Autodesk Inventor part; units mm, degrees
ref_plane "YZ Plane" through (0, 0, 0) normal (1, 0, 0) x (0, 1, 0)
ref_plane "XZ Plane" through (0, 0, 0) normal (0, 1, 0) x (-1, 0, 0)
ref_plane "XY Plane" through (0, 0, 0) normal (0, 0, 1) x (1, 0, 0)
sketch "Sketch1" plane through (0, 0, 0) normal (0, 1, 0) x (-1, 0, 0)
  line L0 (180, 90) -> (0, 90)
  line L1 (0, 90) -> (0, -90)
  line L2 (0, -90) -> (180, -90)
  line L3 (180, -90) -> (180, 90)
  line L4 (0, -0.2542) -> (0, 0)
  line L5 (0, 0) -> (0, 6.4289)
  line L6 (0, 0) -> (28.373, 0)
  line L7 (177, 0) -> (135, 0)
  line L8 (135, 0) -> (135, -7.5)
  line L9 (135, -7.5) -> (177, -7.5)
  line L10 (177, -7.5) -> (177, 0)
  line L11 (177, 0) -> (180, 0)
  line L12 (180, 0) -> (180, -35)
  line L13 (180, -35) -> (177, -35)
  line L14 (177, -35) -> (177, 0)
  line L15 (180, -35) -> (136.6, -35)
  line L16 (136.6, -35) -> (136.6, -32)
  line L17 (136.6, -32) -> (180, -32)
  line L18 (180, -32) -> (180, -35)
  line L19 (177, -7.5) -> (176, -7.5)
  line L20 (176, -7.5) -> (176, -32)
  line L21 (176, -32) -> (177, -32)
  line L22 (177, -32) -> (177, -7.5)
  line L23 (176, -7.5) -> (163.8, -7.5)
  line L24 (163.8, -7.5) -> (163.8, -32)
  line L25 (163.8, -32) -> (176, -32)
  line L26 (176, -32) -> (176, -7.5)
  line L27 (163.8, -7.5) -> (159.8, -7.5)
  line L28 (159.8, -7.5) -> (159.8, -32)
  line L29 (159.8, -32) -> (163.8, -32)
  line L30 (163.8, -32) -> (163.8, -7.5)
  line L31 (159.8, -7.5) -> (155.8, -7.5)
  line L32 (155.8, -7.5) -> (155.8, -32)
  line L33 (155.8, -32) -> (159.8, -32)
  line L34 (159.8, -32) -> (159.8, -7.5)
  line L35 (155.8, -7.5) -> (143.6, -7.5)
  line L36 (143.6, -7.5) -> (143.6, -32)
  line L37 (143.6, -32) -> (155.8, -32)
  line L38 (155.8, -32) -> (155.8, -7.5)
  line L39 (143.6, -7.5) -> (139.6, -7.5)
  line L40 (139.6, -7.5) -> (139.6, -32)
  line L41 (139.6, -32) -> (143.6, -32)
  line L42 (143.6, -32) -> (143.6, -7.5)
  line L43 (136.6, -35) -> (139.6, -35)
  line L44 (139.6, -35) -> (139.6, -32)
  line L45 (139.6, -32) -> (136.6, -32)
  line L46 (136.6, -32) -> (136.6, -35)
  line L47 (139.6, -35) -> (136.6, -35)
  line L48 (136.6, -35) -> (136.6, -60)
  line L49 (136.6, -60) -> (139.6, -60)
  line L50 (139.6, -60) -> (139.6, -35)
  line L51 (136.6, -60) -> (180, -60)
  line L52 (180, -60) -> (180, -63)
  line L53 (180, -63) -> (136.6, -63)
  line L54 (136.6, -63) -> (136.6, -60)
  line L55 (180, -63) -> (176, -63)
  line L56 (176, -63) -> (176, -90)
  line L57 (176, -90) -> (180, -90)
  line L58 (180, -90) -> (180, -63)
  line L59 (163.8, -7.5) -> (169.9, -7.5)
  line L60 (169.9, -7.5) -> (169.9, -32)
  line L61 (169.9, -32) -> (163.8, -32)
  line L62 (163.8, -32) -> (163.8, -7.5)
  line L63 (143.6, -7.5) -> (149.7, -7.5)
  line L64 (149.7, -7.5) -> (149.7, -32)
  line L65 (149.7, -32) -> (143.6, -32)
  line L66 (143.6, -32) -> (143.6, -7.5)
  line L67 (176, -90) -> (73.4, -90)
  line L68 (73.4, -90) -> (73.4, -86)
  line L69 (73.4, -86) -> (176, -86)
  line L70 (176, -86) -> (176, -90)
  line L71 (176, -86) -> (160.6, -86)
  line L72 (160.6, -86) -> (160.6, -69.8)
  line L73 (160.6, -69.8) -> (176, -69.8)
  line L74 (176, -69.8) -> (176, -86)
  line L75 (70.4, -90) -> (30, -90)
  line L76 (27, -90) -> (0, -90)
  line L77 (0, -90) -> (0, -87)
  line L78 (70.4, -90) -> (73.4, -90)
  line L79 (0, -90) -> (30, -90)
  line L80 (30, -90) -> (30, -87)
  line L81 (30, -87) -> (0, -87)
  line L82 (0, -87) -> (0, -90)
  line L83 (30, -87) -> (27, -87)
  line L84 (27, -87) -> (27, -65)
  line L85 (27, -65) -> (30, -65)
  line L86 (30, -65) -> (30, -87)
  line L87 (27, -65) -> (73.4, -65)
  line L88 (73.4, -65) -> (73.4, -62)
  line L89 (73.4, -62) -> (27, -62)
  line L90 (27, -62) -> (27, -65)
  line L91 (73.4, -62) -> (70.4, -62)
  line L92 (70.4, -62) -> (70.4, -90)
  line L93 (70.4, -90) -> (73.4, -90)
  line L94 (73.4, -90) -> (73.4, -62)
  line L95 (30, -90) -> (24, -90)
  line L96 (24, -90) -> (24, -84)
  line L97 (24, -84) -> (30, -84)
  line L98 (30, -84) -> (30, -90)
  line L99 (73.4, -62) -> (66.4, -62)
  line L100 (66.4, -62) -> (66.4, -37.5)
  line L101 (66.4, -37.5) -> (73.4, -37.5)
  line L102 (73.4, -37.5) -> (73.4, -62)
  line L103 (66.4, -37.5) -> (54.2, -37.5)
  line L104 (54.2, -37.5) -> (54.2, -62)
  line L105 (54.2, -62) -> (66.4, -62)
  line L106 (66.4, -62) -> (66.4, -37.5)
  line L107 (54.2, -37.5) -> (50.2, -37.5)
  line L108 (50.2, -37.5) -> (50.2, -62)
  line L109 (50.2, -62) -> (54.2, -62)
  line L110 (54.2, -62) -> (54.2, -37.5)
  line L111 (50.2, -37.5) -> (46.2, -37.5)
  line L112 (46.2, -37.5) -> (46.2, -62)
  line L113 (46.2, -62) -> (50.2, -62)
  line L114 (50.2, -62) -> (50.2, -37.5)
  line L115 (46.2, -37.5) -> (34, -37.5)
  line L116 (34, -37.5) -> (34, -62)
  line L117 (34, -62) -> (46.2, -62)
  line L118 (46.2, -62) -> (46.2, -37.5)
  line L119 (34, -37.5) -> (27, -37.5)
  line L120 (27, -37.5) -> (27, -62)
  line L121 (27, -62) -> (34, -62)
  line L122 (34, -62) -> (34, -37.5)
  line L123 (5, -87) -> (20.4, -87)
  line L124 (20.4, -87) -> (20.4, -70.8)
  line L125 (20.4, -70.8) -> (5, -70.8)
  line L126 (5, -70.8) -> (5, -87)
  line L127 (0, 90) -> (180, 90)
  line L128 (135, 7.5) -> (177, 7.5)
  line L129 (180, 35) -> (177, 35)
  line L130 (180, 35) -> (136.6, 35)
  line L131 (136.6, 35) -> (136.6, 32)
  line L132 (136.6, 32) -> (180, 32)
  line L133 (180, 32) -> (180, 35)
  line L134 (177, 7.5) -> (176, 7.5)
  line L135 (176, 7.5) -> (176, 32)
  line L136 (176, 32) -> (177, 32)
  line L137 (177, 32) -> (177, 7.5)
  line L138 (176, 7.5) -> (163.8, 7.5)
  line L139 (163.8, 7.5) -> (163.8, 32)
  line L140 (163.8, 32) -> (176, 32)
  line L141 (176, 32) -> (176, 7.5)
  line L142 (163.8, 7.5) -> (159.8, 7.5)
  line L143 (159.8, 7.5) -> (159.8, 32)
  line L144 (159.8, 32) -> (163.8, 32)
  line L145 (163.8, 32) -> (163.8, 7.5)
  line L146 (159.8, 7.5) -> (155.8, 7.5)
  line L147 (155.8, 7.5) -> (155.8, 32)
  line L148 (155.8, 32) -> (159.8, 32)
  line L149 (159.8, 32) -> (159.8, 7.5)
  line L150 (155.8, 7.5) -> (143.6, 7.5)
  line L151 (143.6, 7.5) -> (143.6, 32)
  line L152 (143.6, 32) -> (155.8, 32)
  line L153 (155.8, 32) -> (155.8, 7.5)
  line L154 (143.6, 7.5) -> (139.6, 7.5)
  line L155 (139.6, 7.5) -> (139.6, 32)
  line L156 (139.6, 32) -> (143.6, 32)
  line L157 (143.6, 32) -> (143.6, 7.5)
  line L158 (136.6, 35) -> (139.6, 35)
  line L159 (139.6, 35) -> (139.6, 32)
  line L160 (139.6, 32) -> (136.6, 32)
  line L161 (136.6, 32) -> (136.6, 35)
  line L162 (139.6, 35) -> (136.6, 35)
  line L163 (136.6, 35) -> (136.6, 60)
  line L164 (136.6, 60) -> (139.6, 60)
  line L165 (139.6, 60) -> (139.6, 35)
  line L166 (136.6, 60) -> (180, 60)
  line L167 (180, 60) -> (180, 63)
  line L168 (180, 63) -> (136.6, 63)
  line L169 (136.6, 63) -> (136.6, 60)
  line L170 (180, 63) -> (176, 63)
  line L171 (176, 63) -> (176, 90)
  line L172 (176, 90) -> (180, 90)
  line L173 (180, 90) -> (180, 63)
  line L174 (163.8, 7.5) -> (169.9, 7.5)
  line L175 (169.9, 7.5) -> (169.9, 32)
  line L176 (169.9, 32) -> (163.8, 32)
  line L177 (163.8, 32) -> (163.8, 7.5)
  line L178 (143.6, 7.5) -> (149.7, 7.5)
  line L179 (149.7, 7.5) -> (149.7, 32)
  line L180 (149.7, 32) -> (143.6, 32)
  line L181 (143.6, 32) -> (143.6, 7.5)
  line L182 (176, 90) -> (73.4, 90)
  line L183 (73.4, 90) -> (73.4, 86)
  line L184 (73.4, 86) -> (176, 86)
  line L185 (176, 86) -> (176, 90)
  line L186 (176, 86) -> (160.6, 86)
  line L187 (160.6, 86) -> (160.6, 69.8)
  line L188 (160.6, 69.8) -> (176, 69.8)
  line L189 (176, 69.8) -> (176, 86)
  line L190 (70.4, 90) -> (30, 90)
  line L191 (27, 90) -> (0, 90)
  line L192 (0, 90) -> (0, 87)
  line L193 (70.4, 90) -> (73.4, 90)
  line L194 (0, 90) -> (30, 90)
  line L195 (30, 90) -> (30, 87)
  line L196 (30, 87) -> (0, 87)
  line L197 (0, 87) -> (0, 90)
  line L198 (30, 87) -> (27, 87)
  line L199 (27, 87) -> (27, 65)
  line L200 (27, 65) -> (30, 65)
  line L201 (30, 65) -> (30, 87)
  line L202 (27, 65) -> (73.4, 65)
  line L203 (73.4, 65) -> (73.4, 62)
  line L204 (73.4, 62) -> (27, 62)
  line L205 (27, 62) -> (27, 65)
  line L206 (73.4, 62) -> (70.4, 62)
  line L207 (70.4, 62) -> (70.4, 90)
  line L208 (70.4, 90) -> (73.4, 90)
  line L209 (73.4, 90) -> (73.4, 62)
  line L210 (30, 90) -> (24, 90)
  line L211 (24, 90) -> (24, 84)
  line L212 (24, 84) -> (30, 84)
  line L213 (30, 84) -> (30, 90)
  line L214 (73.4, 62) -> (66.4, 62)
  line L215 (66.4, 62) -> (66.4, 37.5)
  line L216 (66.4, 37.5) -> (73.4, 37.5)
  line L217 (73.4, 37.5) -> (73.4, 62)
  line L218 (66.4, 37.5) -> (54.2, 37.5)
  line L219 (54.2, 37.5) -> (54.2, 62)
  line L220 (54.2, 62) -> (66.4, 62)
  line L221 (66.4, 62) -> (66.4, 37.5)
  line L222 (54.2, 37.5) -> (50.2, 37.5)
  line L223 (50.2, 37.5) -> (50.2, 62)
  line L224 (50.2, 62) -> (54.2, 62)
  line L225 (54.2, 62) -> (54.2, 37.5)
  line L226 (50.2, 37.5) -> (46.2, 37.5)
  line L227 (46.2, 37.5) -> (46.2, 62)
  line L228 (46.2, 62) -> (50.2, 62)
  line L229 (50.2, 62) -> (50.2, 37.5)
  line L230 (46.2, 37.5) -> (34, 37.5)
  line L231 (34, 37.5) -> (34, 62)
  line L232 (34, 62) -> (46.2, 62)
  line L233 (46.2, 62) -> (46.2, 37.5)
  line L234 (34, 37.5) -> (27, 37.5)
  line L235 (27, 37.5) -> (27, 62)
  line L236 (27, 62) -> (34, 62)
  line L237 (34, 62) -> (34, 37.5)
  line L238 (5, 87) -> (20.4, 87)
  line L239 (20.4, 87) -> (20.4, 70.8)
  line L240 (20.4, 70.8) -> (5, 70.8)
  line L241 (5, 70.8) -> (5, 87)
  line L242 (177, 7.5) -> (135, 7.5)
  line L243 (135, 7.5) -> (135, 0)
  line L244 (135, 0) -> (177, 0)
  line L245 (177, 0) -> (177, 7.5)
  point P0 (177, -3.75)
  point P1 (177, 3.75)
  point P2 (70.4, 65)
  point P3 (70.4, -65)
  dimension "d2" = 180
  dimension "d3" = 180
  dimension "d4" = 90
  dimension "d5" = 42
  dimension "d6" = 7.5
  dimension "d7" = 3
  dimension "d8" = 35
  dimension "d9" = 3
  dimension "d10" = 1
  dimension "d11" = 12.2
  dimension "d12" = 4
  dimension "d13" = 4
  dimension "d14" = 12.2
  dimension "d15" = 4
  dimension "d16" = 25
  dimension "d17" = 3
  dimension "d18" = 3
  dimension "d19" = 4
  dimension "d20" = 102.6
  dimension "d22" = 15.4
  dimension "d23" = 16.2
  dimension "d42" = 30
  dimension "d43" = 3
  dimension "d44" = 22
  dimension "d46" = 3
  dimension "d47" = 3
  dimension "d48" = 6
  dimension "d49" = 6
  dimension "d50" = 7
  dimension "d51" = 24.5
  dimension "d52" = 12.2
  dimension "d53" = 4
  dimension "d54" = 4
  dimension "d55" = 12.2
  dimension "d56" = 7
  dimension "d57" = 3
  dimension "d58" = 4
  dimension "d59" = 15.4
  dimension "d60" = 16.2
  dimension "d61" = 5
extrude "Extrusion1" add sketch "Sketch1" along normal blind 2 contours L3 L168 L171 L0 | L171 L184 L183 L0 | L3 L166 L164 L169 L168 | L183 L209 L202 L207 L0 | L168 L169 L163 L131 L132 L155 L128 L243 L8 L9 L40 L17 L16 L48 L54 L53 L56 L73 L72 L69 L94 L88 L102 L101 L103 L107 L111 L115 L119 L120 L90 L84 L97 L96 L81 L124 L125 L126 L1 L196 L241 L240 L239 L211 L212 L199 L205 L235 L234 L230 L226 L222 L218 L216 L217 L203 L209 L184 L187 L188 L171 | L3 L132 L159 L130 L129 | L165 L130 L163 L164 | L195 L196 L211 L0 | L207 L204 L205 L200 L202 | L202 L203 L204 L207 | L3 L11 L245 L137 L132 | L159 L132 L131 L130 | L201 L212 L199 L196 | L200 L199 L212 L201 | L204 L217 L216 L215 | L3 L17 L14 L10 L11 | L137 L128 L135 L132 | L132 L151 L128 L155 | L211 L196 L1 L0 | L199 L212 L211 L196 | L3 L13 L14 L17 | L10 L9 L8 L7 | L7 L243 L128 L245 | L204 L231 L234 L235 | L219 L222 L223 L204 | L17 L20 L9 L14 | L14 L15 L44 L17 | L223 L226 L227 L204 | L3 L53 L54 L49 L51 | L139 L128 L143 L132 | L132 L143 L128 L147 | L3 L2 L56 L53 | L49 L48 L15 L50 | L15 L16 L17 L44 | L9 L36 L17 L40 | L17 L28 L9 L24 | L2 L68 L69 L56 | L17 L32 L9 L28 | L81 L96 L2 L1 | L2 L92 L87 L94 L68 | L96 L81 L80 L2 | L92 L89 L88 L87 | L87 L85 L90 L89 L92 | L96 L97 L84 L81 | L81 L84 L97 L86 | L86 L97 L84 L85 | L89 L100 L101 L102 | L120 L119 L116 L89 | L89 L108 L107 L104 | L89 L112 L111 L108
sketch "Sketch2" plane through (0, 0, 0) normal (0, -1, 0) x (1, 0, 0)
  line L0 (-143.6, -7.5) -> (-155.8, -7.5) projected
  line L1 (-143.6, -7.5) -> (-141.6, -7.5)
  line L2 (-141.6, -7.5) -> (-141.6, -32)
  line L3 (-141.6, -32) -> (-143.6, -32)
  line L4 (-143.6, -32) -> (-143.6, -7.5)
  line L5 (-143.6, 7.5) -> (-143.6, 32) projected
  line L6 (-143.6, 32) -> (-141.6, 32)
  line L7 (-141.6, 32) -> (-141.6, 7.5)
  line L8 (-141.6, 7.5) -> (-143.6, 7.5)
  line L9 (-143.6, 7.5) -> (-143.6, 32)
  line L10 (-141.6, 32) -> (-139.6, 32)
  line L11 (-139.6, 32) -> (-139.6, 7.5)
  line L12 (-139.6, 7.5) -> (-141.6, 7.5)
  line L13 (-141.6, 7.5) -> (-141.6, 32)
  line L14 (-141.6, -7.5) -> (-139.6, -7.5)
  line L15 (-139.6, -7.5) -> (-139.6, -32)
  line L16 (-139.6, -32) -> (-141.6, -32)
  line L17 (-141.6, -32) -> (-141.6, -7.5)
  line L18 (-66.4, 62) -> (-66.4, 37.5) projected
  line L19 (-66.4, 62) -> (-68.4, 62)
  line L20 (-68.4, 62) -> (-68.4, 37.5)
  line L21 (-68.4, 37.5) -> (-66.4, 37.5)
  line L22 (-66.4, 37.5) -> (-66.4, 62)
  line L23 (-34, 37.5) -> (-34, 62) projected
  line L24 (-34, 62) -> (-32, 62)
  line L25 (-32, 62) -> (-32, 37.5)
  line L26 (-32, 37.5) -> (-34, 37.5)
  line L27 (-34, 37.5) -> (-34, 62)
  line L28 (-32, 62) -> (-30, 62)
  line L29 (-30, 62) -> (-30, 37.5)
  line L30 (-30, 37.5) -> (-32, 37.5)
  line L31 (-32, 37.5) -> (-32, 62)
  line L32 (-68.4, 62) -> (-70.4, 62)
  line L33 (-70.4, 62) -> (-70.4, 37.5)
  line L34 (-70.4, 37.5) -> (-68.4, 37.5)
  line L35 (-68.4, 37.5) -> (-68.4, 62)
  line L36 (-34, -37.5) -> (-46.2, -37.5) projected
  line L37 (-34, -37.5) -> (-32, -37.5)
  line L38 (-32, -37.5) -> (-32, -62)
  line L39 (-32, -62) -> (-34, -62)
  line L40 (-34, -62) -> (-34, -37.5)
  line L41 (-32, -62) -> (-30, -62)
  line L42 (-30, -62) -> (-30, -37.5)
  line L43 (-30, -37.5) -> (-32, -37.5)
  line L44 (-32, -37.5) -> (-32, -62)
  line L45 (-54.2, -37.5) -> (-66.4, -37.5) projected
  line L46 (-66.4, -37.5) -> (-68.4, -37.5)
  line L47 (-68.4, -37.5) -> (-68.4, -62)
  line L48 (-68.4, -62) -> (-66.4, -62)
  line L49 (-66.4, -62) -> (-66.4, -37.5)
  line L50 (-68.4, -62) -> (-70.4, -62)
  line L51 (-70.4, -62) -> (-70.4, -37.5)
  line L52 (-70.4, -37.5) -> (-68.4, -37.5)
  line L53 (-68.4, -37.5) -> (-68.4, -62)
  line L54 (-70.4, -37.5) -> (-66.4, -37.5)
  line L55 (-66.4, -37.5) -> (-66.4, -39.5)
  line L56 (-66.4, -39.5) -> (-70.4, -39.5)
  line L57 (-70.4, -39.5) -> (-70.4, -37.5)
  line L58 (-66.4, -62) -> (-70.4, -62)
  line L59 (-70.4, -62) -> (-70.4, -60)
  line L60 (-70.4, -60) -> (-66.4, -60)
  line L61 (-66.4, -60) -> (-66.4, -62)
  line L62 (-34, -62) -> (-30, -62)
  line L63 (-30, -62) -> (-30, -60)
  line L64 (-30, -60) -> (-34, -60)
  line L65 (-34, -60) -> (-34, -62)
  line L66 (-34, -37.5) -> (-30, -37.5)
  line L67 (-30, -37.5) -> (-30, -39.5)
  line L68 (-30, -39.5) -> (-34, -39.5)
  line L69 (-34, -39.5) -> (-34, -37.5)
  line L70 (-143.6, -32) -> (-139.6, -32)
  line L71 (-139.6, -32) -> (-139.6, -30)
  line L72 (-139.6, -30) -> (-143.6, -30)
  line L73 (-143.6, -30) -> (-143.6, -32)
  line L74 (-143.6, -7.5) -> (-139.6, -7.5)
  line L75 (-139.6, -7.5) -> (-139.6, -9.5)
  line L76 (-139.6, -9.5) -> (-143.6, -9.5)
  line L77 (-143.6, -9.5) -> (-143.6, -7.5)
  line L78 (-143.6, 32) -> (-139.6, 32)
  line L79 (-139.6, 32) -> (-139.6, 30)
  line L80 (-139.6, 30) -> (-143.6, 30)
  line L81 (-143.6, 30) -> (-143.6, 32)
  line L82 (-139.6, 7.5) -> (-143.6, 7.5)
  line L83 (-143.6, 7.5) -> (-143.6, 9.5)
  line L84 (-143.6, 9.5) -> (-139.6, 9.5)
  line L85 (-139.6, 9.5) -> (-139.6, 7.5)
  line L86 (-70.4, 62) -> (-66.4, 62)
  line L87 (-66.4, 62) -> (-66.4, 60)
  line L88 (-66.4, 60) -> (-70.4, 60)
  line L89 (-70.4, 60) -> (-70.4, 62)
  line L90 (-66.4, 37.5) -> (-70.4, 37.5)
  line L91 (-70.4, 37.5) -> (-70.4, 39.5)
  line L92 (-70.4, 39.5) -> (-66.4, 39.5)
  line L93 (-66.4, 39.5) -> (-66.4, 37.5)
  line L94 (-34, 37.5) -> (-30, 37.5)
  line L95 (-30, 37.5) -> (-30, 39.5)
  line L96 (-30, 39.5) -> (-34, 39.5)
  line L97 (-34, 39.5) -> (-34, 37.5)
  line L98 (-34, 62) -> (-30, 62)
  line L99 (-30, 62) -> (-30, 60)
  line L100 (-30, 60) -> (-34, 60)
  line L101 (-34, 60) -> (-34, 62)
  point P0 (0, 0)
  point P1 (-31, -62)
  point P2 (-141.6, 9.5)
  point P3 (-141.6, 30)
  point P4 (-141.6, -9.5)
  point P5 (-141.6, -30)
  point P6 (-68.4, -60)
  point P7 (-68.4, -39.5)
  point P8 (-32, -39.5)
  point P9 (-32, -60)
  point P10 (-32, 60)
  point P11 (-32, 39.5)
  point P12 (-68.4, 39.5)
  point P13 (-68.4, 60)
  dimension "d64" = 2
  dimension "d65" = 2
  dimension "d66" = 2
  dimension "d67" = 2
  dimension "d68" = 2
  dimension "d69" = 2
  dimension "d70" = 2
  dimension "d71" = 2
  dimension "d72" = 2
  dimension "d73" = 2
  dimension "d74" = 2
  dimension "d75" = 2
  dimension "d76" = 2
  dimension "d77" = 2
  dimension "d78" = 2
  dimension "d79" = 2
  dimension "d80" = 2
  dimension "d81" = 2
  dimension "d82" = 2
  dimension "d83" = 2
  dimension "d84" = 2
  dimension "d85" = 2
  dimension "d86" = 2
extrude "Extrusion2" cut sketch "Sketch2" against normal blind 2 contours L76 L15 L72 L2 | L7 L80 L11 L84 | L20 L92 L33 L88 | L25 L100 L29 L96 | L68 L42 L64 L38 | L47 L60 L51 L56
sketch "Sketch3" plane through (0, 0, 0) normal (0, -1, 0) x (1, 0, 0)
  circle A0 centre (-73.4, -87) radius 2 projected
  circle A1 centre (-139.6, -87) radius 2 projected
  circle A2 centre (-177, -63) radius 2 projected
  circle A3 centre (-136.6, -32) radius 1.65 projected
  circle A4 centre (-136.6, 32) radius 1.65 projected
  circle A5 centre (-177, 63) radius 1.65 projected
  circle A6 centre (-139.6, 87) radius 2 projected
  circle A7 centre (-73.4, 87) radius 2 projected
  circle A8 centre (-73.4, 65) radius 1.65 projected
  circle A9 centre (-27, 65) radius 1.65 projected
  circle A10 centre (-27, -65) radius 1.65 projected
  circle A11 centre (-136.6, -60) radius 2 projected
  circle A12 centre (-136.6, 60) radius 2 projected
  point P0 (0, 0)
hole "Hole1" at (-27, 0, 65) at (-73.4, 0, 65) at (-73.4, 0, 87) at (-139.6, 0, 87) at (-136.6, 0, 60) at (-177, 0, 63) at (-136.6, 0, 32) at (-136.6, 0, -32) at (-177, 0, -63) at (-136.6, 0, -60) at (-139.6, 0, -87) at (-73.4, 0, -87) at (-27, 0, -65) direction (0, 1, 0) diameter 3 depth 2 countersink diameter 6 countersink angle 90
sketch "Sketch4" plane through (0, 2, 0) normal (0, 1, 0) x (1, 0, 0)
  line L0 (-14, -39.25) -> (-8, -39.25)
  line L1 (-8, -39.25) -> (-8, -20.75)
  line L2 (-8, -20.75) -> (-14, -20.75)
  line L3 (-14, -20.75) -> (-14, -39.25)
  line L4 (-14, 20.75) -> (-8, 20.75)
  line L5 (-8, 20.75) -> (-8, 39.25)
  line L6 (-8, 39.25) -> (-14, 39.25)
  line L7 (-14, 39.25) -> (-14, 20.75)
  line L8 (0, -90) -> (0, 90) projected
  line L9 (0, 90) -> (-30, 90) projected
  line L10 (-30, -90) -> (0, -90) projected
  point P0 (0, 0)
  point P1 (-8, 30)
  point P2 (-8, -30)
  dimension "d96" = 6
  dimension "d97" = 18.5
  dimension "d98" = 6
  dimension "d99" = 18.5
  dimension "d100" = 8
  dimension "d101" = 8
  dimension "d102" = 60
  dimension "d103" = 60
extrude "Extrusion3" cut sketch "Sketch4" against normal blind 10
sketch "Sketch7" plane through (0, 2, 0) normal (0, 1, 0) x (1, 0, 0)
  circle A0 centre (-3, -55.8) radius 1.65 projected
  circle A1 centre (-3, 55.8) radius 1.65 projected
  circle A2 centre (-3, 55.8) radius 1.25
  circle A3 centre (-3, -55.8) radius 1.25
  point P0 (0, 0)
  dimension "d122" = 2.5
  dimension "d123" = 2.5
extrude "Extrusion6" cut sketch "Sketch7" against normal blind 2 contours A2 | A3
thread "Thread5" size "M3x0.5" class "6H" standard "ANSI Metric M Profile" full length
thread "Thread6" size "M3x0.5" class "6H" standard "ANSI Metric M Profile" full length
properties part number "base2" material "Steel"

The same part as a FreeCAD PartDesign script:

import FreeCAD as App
import Part
import Sketcher

doc = App.newDocument("Part")
body = doc.addObject("PartDesign::Body", "Body")

sketch1 = body.newObject("Sketcher::SketchObject", "Sketch")
sketch1.AttachmentSupport = (doc.getObject("XZ_Plane"), [""])
sketch1.MapMode = "FlatFace"
sketch1.addGeometry(Part.LineSegment(App.Vector(-180, 90, 0), App.Vector(-70.4, 90, 0)), False)
sketch1.addGeometry(Part.LineSegment(App.Vector(-70.4, 90, 0), App.Vector(-70.4, 65, 0)), False)
sketch1.addGeometry(Part.LineSegment(App.Vector(-70.4, 65, 0), App.Vector(-30, 65, 0)), False)
sketch1.addGeometry(Part.LineSegment(App.Vector(-30, 65, 0), App.Vector(-30, 90, 0)), False)
sketch1.addGeometry(Part.LineSegment(App.Vector(-30, 90, 0), App.Vector(0, 90, 0)), False)
sketch1.addGeometry(Part.LineSegment(App.Vector(0, 90, 0), App.Vector(0, -90, 0)), False)
sketch1.addGeometry(Part.LineSegment(App.Vector(0, -90, 0), App.Vector(-30, -90, 0)), False)
sketch1.addGeometry(Part.LineSegment(App.Vector(-30, -90, 0), App.Vector(-30, -65, 0)), False)
sketch1.addGeometry(Part.LineSegment(App.Vector(-30, -65, 0), App.Vector(-70.4, -65, 0)), False)
sketch1.addGeometry(Part.LineSegment(App.Vector(-70.4, -65, 0), App.Vector(-70.4, -90, 0)), False)
sketch1.addGeometry(Part.LineSegment(App.Vector(-70.4, -90, 0), App.Vector(-180, -90, 0)), False)
sketch1.addGeometry(Part.LineSegment(App.Vector(-180, -90, 0), App.Vector(-180, -60, 0)), False)
sketch1.addGeometry(Part.LineSegment(App.Vector(-180, -60, 0), App.Vector(-139.6, -60, 0)), False)
sketch1.addGeometry(Part.LineSegment(App.Vector(-139.6, -60, 0), App.Vector(-139.6, -35, 0)), False)
sketch1.addGeometry(Part.LineSegment(App.Vector(-139.6, -35, 0), App.Vector(-180, -35, 0)), False)
sketch1.addGeometry(Part.LineSegment(App.Vector(-180, -35, 0), App.Vector(-180, 35, 0)), False)
sketch1.addGeometry(Part.LineSegment(App.Vector(-180, 35, 0), App.Vector(-139.6, 35, 0)), False)
sketch1.addGeometry(Part.LineSegment(App.Vector(-139.6, 35, 0), App.Vector(-139.6, 60, 0)), False)
sketch1.addGeometry(Part.LineSegment(App.Vector(-139.6, 60, 0), App.Vector(-180, 60, 0)), False)
sketch1.addGeometry(Part.LineSegment(App.Vector(-180, 60, 0), App.Vector(-180, 90, 0)), False)
sketch1.addGeometry(Part.LineSegment(App.Vector(-176, 86, 0), App.Vector(-176, 69.8, 0)), False)
sketch1.addGeometry(Part.LineSegment(App.Vector(-176, 69.8, 0), App.Vector(-160.6, 69.8, 0)), False)
sketch1.addGeometry(Part.LineSegment(App.Vector(-160.6, 69.8, 0), App.Vector(-160.6, 86, 0)), False)
sketch1.addGeometry(Part.LineSegment(App.Vector(-160.6, 86, 0), App.Vector(-176, 86, 0)), False)
sketch1.addGeometry(Part.LineSegment(App.Vector(-160.6, -69.8, 0), App.Vector(-176, -69.8, 0)), False)
sketch1.addGeometry(Part.LineSegment(App.Vector(-176, -69.8, 0), App.Vector(-176, -86, 0)), False)
sketch1.addGeometry(Part.LineSegment(App.Vector(-176, -86, 0), App.Vector(-160.6, -86, 0)), False)
sketch1.addGeometry(Part.LineSegment(App.Vector(-160.6, -86, 0), App.Vector(-160.6, -69.8, 0)), False)
sketch1.addGeometry(Part.LineSegment(App.Vector(-54.2, -37.5, 0), App.Vector(-66.4, -37.5, 0)), False)
sketch1.addGeometry(Part.LineSegment(App.Vector(-66.4, -37.5, 0), App.Vector(-66.4, -62, 0)), False)
sketch1.addGeometry(Part.LineSegment(App.Vector(-66.4, -62, 0), App.Vector(-54.2, -62, 0)), False)
sketch1.addGeometry(Part.LineSegment(App.Vector(-54.2, -62, 0), App.Vector(-54.2, -37.5, 0)), False)
sketch1.addGeometry(Part.LineSegment(App.Vector(-34, -37.5, 0), App.Vector(-46.2, -37.5, 0)), False)
sketch1.addGeometry(Part.LineSegment(App.Vector(-46.2, -37.5, 0), App.Vector(-46.2, -62, 0)), False)
sketch1.addGeometry(Part.LineSegment(App.Vector(-46.2, -62, 0), App.Vector(-34, -62, 0)), False)
sketch1.addGeometry(Part.LineSegment(App.Vector(-34, -62, 0), App.Vector(-34, -37.5, 0)), False)
sketch1.addGeometry(Part.LineSegment(App.Vector(-20.4, -70.8, 0), App.Vector(-20.4, -87, 0)), False)
sketch1.addGeometry(Part.LineSegment(App.Vector(-20.4, -87, 0), App.Vector(-5, -87, 0)), False)
sketch1.addGeometry(Part.LineSegment(App.Vector(-5, -87, 0), App.Vector(-5, -70.8, 0)), False)
sketch1.addGeometry(Part.LineSegment(App.Vector(-5, -70.8, 0), App.Vector(-20.4, -70.8, 0)), False)
sketch1.addGeometry(Part.LineSegment(App.Vector(-5, 70.8, 0), App.Vector(-5, 87, 0)), False)
sketch1.addGeometry(Part.LineSegment(App.Vector(-5, 87, 0), App.Vector(-20.4, 87, 0)), False)
sketch1.addGeometry(Part.LineSegment(App.Vector(-20.4, 87, 0), App.Vector(-20.4, 70.8, 0)), False)
sketch1.addGeometry(Part.LineSegment(App.Vector(-20.4, 70.8, 0), App.Vector(-5, 70.8, 0)), False)
sketch1.addGeometry(Part.LineSegment(App.Vector(-46.2, 37.5, 0), App.Vector(-34, 37.5, 0)), False)
sketch1.addGeometry(Part.LineSegment(App.Vector(-34, 37.5, 0), App.Vector(-34, 62, 0)), False)
sketch1.addGeometry(Part.LineSegment(App.Vector(-34, 62, 0), App.Vector(-46.2, 62, 0)), False)
sketch1.addGeometry(Part.LineSegment(App.Vector(-46.2, 62, 0), App.Vector(-46.2, 37.5, 0)), False)
sketch1.addGeometry(Part.LineSegment(App.Vector(-66.4, 37.5, 0), App.Vector(-54.2, 37.5, 0)), False)
sketch1.addGeometry(Part.LineSegment(App.Vector(-54.2, 37.5, 0), App.Vector(-54.2, 62, 0)), False)
sketch1.addGeometry(Part.LineSegment(App.Vector(-54.2, 62, 0), App.Vector(-66.4, 62, 0)), False)
sketch1.addGeometry(Part.LineSegment(App.Vector(-66.4, 62, 0), App.Vector(-66.4, 37.5, 0)), False)
sketch1.addGeometry(Part.LineSegment(App.Vector(-143.6, 7.5, 0), App.Vector(-143.6, 32, 0)), False)
sketch1.addGeometry(Part.LineSegment(App.Vector(-143.6, 32, 0), App.Vector(-155.8, 32, 0)), False)
sketch1.addGeometry(Part.LineSegment(App.Vector(-155.8, 32, 0), App.Vector(-155.8, 7.5, 0)), False)
sketch1.addGeometry(Part.LineSegment(App.Vector(-155.8, 7.5, 0), App.Vector(-143.6, 7.5, 0)), False)
sketch1.addGeometry(Part.LineSegment(App.Vector(-176, 7.5, 0), App.Vector(-163.8, 7.5, 0)), False)
sketch1.addGeometry(Part.LineSegment(App.Vector(-163.8, 7.5, 0), App.Vector(-163.8, 32, 0)), False)
sketch1.addGeometry(Part.LineSegment(App.Vector(-163.8, 32, 0), App.Vector(-176, 32, 0)), False)
sketch1.addGeometry(Part.LineSegment(App.Vector(-176, 32, 0), App.Vector(-176, 7.5, 0)), False)
sketch1.addGeometry(Part.LineSegment(App.Vector(-176, -7.5, 0), App.Vector(-176, -32, 0)), False)
sketch1.addGeometry(Part.LineSegment(App.Vector(-176, -32, 0), App.Vector(-163.8, -32, 0)), False)
sketch1.addGeometry(Part.LineSegment(App.Vector(-163.8, -32, 0), App.Vector(-163.8, -7.5, 0)), False)
sketch1.addGeometry(Part.LineSegment(App.Vector(-163.8, -7.5, 0), App.Vector(-176, -7.5, 0)), False)
sketch1.addGeometry(Part.LineSegment(App.Vector(-155.8, -7.5, 0), App.Vector(-155.8, -32, 0)), False)
sketch1.addGeometry(Part.LineSegment(App.Vector(-155.8, -32, 0), App.Vector(-143.6, -32, 0)), False)
sketch1.addGeometry(Part.LineSegment(App.Vector(-143.6, -32, 0), App.Vector(-143.6, -7.5, 0)), False)
sketch1.addGeometry(Part.LineSegment(App.Vector(-143.6, -7.5, 0), App.Vector(-155.8, -7.5, 0)), False)
sketch1.addConstraint(Sketcher.Constraint("Coincident", 0, 2, 1, 1))
sketch1.addConstraint(Sketcher.Constraint("Coincident", 1, 2, 2, 1))
sketch1.addConstraint(Sketcher.Constraint("Coincident", 2, 2, 3, 1))
sketch1.addConstraint(Sketcher.Constraint("Coincident", 3, 2, 4, 1))
sketch1.addConstraint(Sketcher.Constraint("Coincident", 4, 2, 5, 1))
sketch1.addConstraint(Sketcher.Constraint("Coincident", 5, 2, 6, 1))
sketch1.addConstraint(Sketcher.Constraint("Coincident", 6, 2, 7, 1))
sketch1.addConstraint(Sketcher.Constraint("Coincident", 7, 2, 8, 1))
sketch1.addConstraint(Sketcher.Constraint("Coincident", 8, 2, 9, 1))
sketch1.addConstraint(Sketcher.Constraint("Coincident", 9, 2, 10, 1))
sketch1.addConstraint(Sketcher.Constraint("Coincident", 10, 2, 11, 1))
sketch1.addConstraint(Sketcher.Constraint("Coincident", 11, 2, 12, 1))
sketch1.addConstraint(Sketcher.Constraint("Coincident", 12, 2, 13, 1))
sketch1.addConstraint(Sketcher.Constraint("Coincident", 13, 2, 14, 1))
sketch1.addConstraint(Sketcher.Constraint("Coincident", 14, 2, 15, 1))
sketch1.addConstraint(Sketcher.Constraint("Coincident", 15, 2, 16, 1))
sketch1.addConstraint(Sketcher.Constraint("Coincident", 16, 2, 17, 1))
sketch1.addConstraint(Sketcher.Constraint("Coincident", 17, 2, 18, 1))
sketch1.addConstraint(Sketcher.Constraint("Coincident", 18, 2, 19, 1))
sketch1.addConstraint(Sketcher.Constraint("Coincident", 19, 2, 0, 1))
sketch1.addConstraint(Sketcher.Constraint("Coincident", 20, 2, 21, 1))
sketch1.addConstraint(Sketcher.Constraint("Coincident", 21, 2, 22, 1))
sketch1.addConstraint(Sketcher.Constraint("Coincident", 22, 2, 23, 1))
sketch1.addConstraint(Sketcher.Constraint("Coincident", 23, 2, 20, 1))
sketch1.addConstraint(Sketcher.Constraint("Coincident", 24, 2, 25, 1))
sketch1.addConstraint(Sketcher.Constraint("Coincident", 25, 2, 26, 1))
sketch1.addConstraint(Sketcher.Constraint("Coincident", 26, 2, 27, 1))
sketch1.addConstraint(Sketcher.Constraint("Coincident", 27, 2, 24, 1))
sketch1.addConstraint(Sketcher.Constraint("Coincident", 28, 2, 29, 1))
sketch1.addConstraint(Sketcher.Constraint("Coincident", 29, 2, 30, 1))
sketch1.addConstraint(Sketcher.Constraint("Coincident", 30, 2, 31, 1))
sketch1.addConstraint(Sketcher.Constraint("Coincident", 31, 2, 28, 1))
sketch1.addConstraint(Sketcher.Constraint("Coincident", 32, 2, 33, 1))
sketch1.addConstraint(Sketcher.Constraint("Coincident", 33, 2, 34, 1))
sketch1.addConstraint(Sketcher.Constraint("Coincident", 34, 2, 35, 1))
sketch1.addConstraint(Sketcher.Constraint("Coincident", 35, 2, 32, 1))
sketch1.addConstraint(Sketcher.Constraint("Coincident", 36, 2, 37, 1))
sketch1.addConstraint(Sketcher.Constraint("Coincident", 37, 2, 38, 1))
sketch1.addConstraint(Sketcher.Constraint("Coincident", 38, 2, 39, 1))
sketch1.addConstraint(Sketcher.Constraint("Coincident", 39, 2, 36, 1))
sketch1.addConstraint(Sketcher.Constraint("Coincident", 40, 2, 41, 1))
sketch1.addConstraint(Sketcher.Constraint("Coincident", 41, 2, 42, 1))
sketch1.addConstraint(Sketcher.Constraint("Coincident", 42, 2, 43, 1))
sketch1.addConstraint(Sketcher.Constraint("Coincident", 43, 2, 40, 1))
sketch1.addConstraint(Sketcher.Constraint("Coincident", 44, 2, 45, 1))
sketch1.addConstraint(Sketcher.Constraint("Coincident", 45, 2, 46, 1))
sketch1.addConstraint(Sketcher.Constraint("Coincident", 46, 2, 47, 1))
sketch1.addConstraint(Sketcher.Constraint("Coincident", 47, 2, 44, 1))
sketch1.addConstraint(Sketcher.Constraint("Coincident", 48, 2, 49, 1))
sketch1.addConstraint(Sketcher.Constraint("Coincident", 49, 2, 50, 1))
sketch1.addConstraint(Sketcher.Constraint("Coincident", 50, 2, 51, 1))
sketch1.addConstraint(Sketcher.Constraint("Coincident", 51, 2, 48, 1))
sketch1.addConstraint(Sketcher.Constraint("Coincident", 52, 2, 53, 1))
sketch1.addConstraint(Sketcher.Constraint("Coincident", 53, 2, 54, 1))
sketch1.addConstraint(Sketcher.Constraint("Coincident", 54, 2, 55, 1))
sketch1.addConstraint(Sketcher.Constraint("Coincident", 55, 2, 52, 1))
sketch1.addConstraint(Sketcher.Constraint("Coincident", 56, 2, 57, 1))
sketch1.addConstraint(Sketcher.Constraint("Coincident", 57, 2, 58, 1))
sketch1.addConstraint(Sketcher.Constraint("Coincident", 58, 2, 59, 1))
sketch1.addConstraint(Sketcher.Constraint("Coincident", 59, 2, 56, 1))
sketch1.addConstraint(Sketcher.Constraint("Coincident", 60, 2, 61, 1))
sketch1.addConstraint(Sketcher.Constraint("Coincident", 61, 2, 62, 1))
sketch1.addConstraint(Sketcher.Constraint("Coincident", 62, 2, 63, 1))
sketch1.addConstraint(Sketcher.Constraint("Coincident", 63, 2, 60, 1))
sketch1.addConstraint(Sketcher.Constraint("Coincident", 64, 2, 65, 1))
sketch1.addConstraint(Sketcher.Constraint("Coincident", 65, 2, 66, 1))
sketch1.addConstraint(Sketcher.Constraint("Coincident", 66, 2, 67, 1))
sketch1.addConstraint(Sketcher.Constraint("Coincident", 67, 2, 64, 1))
sketch1.addConstraint(Sketcher.Constraint("Horizontal", 0))
sketch1.addConstraint(Sketcher.Constraint("Vertical", 1))
sketch1.addConstraint(Sketcher.Constraint("Horizontal", 2))
sketch1.addConstraint(Sketcher.Constraint("Vertical", 3))
sketch1.addConstraint(Sketcher.Constraint("Horizontal", 4))
sketch1.addConstraint(Sketcher.Constraint("Vertical", 5))
sketch1.addConstraint(Sketcher.Constraint("Horizontal", 6))
sketch1.addConstraint(Sketcher.Constraint("Vertical", 7))
sketch1.addConstraint(Sketcher.Constraint("Horizontal", 8))
sketch1.addConstraint(Sketcher.Constraint("Vertical", 9))
sketch1.addConstraint(Sketcher.Constraint("Horizontal", 10))
sketch1.addConstraint(Sketcher.Constraint("Vertical", 11))
sketch1.addConstraint(Sketcher.Constraint("Horizontal", 12))
sketch1.addConstraint(Sketcher.Constraint("Vertical", 13))
sketch1.addConstraint(Sketcher.Constraint("Horizontal", 14))
sketch1.addConstraint(Sketcher.Constraint("Vertical", 15))
sketch1.addConstraint(Sketcher.Constraint("Horizontal", 16))
sketch1.addConstraint(Sketcher.Constraint("Vertical", 17))
sketch1.addConstraint(Sketcher.Constraint("Horizontal", 18))
sketch1.addConstraint(Sketcher.Constraint("Vertical", 19))
sketch1.addConstraint(Sketcher.Constraint("Vertical", 20))
sketch1.addConstraint(Sketcher.Constraint("Horizontal", 21))
sketch1.addConstraint(Sketcher.Constraint("Vertical", 22))
sketch1.addConstraint(Sketcher.Constraint("Horizontal", 23))
sketch1.addConstraint(Sketcher.Constraint("Horizontal", 24))
sketch1.addConstraint(Sketcher.Constraint("Vertical", 25))
sketch1.addConstraint(Sketcher.Constraint("Horizontal", 26))
sketch1.addConstraint(Sketcher.Constraint("Vertical", 27))
sketch1.addConstraint(Sketcher.Constraint("Horizontal", 28))
sketch1.addConstraint(Sketcher.Constraint("Vertical", 29))
sketch1.addConstraint(Sketcher.Constraint("Horizontal", 30))
sketch1.addConstraint(Sketcher.Constraint("Vertical", 31))
sketch1.addConstraint(Sketcher.Constraint("Horizontal", 32))
sketch1.addConstraint(Sketcher.Constraint("Vertical", 33))
sketch1.addConstraint(Sketcher.Constraint("Horizontal", 34))
sketch1.addConstraint(Sketcher.Constraint("Vertical", 35))
sketch1.addConstraint(Sketcher.Constraint("Vertical", 36))
sketch1.addConstraint(Sketcher.Constraint("Horizontal", 37))
sketch1.addConstraint(Sketcher.Constraint("Vertical", 38))
sketch1.addConstraint(Sketcher.Constraint("Horizontal", 39))
sketch1.addConstraint(Sketcher.Constraint("Vertical", 40))
sketch1.addConstraint(Sketcher.Constraint("Horizontal", 41))
sketch1.addConstraint(Sketcher.Constraint("Vertical", 42))
sketch1.addConstraint(Sketcher.Constraint("Horizontal", 43))
sketch1.addConstraint(Sketcher.Constraint("Horizontal", 44))
sketch1.addConstraint(Sketcher.Constraint("Vertical", 45))
sketch1.addConstraint(Sketcher.Constraint("Horizontal", 46))
sketch1.addConstraint(Sketcher.Constraint("Vertical", 47))
sketch1.addConstraint(Sketcher.Constraint("Horizontal", 48))
sketch1.addConstraint(Sketcher.Constraint("Vertical", 49))
sketch1.addConstraint(Sketcher.Constraint("Horizontal", 50))
sketch1.addConstraint(Sketcher.Constraint("Vertical", 51))
sketch1.addConstraint(Sketcher.Constraint("Vertical", 52))
sketch1.addConstraint(Sketcher.Constraint("Horizontal", 53))
sketch1.addConstraint(Sketcher.Constraint("Vertical", 54))
sketch1.addConstraint(Sketcher.Constraint("Horizontal", 55))
sketch1.addConstraint(Sketcher.Constraint("Horizontal", 56))
sketch1.addConstraint(Sketcher.Constraint("Vertical", 57))
sketch1.addConstraint(Sketcher.Constraint("Horizontal", 58))
sketch1.addConstraint(Sketcher.Constraint("Vertical", 59))
sketch1.addConstraint(Sketcher.Constraint("Vertical", 60))
sketch1.addConstraint(Sketcher.Constraint("Horizontal", 61))
sketch1.addConstraint(Sketcher.Constraint("Vertical", 62))
sketch1.addConstraint(Sketcher.Constraint("Horizontal", 63))
sketch1.addConstraint(Sketcher.Constraint("Vertical", 64))
sketch1.addConstraint(Sketcher.Constraint("Horizontal", 65))
sketch1.addConstraint(Sketcher.Constraint("Vertical", 66))
sketch1.addConstraint(Sketcher.Constraint("Horizontal", 67))
sketch1.addConstraint(Sketcher.Constraint("Symmetric", 4, 2, 5, 2, -1, 1))
sketch1.addConstraint(Sketcher.Constraint("Symmetric", 2, 2, 7, 2, -1))
sketch1.addConstraint(Sketcher.Constraint("Symmetric", 0, 2, 9, 2, -1))
sketch1.addConstraint(Sketcher.Constraint("Symmetric", 13, 2, 16, 2, -1))
sketch1.addConstraint(Sketcher.Constraint("Symmetric", 11, 2, 18, 2, -1))
sketch1.addConstraint(Sketcher.Constraint("Symmetric", 20, 2, 24, 2, -1))
sketch1.addConstraint(Sketcher.Constraint("Symmetric", 22, 2, 26, 2, -1))
sketch1.addConstraint(Sketcher.Constraint("Symmetric", 37, 2, 40, 2, -1))
sketch1.addConstraint(Sketcher.Constraint("Symmetric", 39, 2, 42, 2, -1))
sketch1.addConstraint(Sketcher.Constraint("Symmetric", 35, 2, 44, 2, -1))
sketch1.addConstraint(Sketcher.Constraint("Symmetric", 33, 2, 46, 2, -1))
sketch1.addConstraint(Sketcher.Constraint("Symmetric", 31, 2, 48, 2, -1))
sketch1.addConstraint(Sketcher.Constraint("Symmetric", 29, 2, 50, 2, -1))
sketch1.addConstraint(Sketcher.Constraint("Symmetric", 58, 2, 60, 2, -1))
sketch1.addConstraint(Sketcher.Constraint("Symmetric", 56, 2, 62, 2, -1))
sketch1.addConstraint(Sketcher.Constraint("Symmetric", 53, 2, 64, 2, -1))
sketch1.addConstraint(Sketcher.Constraint("Symmetric", 55, 2, 66, 2, -1))
sketch1.addConstraint(Sketcher.Constraint("Horizontal", 0, 2, 3, 2))
sketch1.addConstraint(Sketcher.Constraint("Horizontal", 31, 2, 32, 2))
sketch1.addConstraint(Sketcher.Constraint("Horizontal", 30, 2, 33, 2))
sketch1.addConstraint(Sketcher.Constraint("Horizontal", 55, 2, 56, 2))
sketch1.addConstraint(Sketcher.Constraint("Horizontal", 53, 2, 57, 2))
sketch1.addConstraint(Sketcher.Constraint("Vertical", 11, 2, 14, 2))
sketch1.addConstraint(Sketcher.Constraint("Vertical", 25, 2, 58, 2))
sketch1.addConstraint(Sketcher.Constraint("Equal", 8, 12))
sketch1.addConstraint(Sketcher.Constraint("Equal", 30, 32))
sketch1.addConstraint(Sketcher.Constraint("Equal", 26, 37))
sketch1.addConstraint(Sketcher.Constraint("Equal", 50, 53))
sketch1.addConstraint(Sketcher.Constraint("Equal", 55, 56))
sketch1.addConstraint(Sketcher.Constraint("Equal", 6, 11))
sketch1.addConstraint(Sketcher.Constraint("Equal", 9, 13))
sketch1.addConstraint(Sketcher.Constraint("Equal", 27, 36))
sketch1.addConstraint(Sketcher.Constraint("Equal", 51, 52))
sketch1.addConstraint(Sketcher.Constraint("DistanceX", 4, 1, 4, 2, 30.0))
sketch1.addConstraint(Sketcher.Constraint("DistanceY", 1, 2, 1, 1, 25.0))
sketch1.addConstraint(Sketcher.Constraint("DistanceY", 5, 2, 5, 1, 180.0))
sketch1.addConstraint(Sketcher.Constraint("DistanceX", 21, 1, 21, 2, 15.4))
sketch1.addConstraint(Sketcher.Constraint("DistanceX", 28, 2, 28, 1, 12.2))
sketch1.addConstraint(Sketcher.Constraint("DistanceY", 20, 2, 20, 1, 16.2))
sketch1.addConstraint(Sketcher.Constraint("DistanceY", 29, 2, 29, 1, 24.5))
sketch1.addConstraint(Sketcher.Constraint("DistanceX", 10, 2, -1, 1, 180.0))
sketch1.addConstraint(Sketcher.Constraint("DistanceX", 37, 2, -1, 1, 5.0))
sketch1.addConstraint(Sketcher.Constraint("DistanceY", -1, 1, 54, 2, 7.5))
sketch1.addConstraint(Sketcher.Constraint("DistanceX", 0, 1, 0, 2, 109.6))
sketch1.addConstraint(Sketcher.Constraint("DistanceX", 20, 2, -1, 1, 176.0))
sketch1.addConstraint(Sketcher.Constraint("DistanceY", -1, 1, 22, 2, 86.0))
sketch1.addConstraint(Sketcher.Constraint("DistanceY", 29, 2, -1, 1, 62.0))
sketch1.addConstraint(Sketcher.Constraint("DistanceX", 34, 2, -1, 1, 34.0))
sketch1.addConstraint(Sketcher.Constraint("DistanceY", 36, 2, -1, 1, 87.0))
sketch1.addConstraint(Sketcher.Constraint("DistanceX", 28, 2, -1, 1, 66.4))
sketch1.addConstraint(Sketcher.Constraint("DistanceX", 52, 2, -1, 1, 143.6))
pad1 = body.newObject("PartDesign::Pad", "Pad")
pad1.Profile = sketch1
pad1.Length = 2
pad1.Reversed = True

sketch2 = body.newObject("Sketcher::SketchObject", "Sketch001")
sketch2.AttachmentSupport = (doc.getObject("XZ_Plane"), [""])
sketch2.MapMode = "FlatFace"
sketch2.addGeometry(Part.LineSegment(App.Vector(-139.6, -9.5, 0), App.Vector(-141.6, -9.5, 0)), False)
sketch2.addGeometry(Part.LineSegment(App.Vector(-141.6, -9.5, 0), App.Vector(-141.6, -30, 0)), False)
sketch2.addGeometry(Part.LineSegment(App.Vector(-141.6, -30, 0), App.Vector(-139.6, -30, 0)), False)
sketch2.addGeometry(Part.LineSegment(App.Vector(-139.6, -30, 0), App.Vector(-139.6, -9.5, 0)), False)
sketch2.addGeometry(Part.LineSegment(App.Vector(-141.6, 30, 0), App.Vector(-141.6, 9.5, 0)), False)
sketch2.addGeometry(Part.LineSegment(App.Vector(-141.6, 9.5, 0), App.Vector(-139.6, 9.5, 0)), False)
sketch2.addGeometry(Part.LineSegment(App.Vector(-139.6, 9.5, 0), App.Vector(-139.6, 30, 0)), False)
sketch2.addGeometry(Part.LineSegment(App.Vector(-139.6, 30, 0), App.Vector(-141.6, 30, 0)), False)
sketch2.addGeometry(Part.LineSegment(App.Vector(-68.4, 39.5, 0), App.Vector(-68.4, 60, 0)), False)
sketch2.addGeometry(Part.LineSegment(App.Vector(-68.4, 60, 0), App.Vector(-70.4, 60, 0)), False)
sketch2.addGeometry(Part.LineSegment(App.Vector(-70.4, 60, 0), App.Vector(-70.4, 39.5, 0)), False)
sketch2.addGeometry(Part.LineSegment(App.Vector(-70.4, 39.5, 0), App.Vector(-68.4, 39.5, 0)), False)
sketch2.addGeometry(Part.LineSegment(App.Vector(-32, 60, 0), App.Vector(-32, 39.5, 0)), False)
sketch2.addGeometry(Part.LineSegment(App.Vector(-32, 39.5, 0), App.Vector(-30, 39.5, 0)), False)
sketch2.addGeometry(Part.LineSegment(App.Vector(-30, 39.5, 0), App.Vector(-30, 60, 0)), False)
sketch2.addGeometry(Part.LineSegment(App.Vector(-30, 60, 0), App.Vector(-32, 60, 0)), False)
sketch2.addGeometry(Part.LineSegment(App.Vector(-30, -39.5, 0), App.Vector(-32, -39.5, 0)), False)
sketch2.addGeometry(Part.LineSegment(App.Vector(-32, -39.5, 0), App.Vector(-32, -60, 0)), False)
sketch2.addGeometry(Part.LineSegment(App.Vector(-32, -60, 0), App.Vector(-30, -60, 0)), False)
sketch2.addGeometry(Part.LineSegment(App.Vector(-30, -60, 0), App.Vector(-30, -39.5, 0)), False)
sketch2.addGeometry(Part.LineSegment(App.Vector(-68.4, -60, 0), App.Vector(-68.4, -39.5, 0)), False)
sketch2.addGeometry(Part.LineSegment(App.Vector(-68.4, -39.5, 0), App.Vector(-70.4, -39.5, 0)), False)
sketch2.addGeometry(Part.LineSegment(App.Vector(-70.4, -39.5, 0), App.Vector(-70.4, -60, 0)), False)
sketch2.addGeometry(Part.LineSegment(App.Vector(-70.4, -60, 0), App.Vector(-68.4, -60, 0)), False)
sketch2.addConstraint(Sketcher.Constraint("Coincident", 0, 2, 1, 1))
sketch2.addConstraint(Sketcher.Constraint("Coincident", 1, 2, 2, 1))
sketch2.addConstraint(Sketcher.Constraint("Coincident", 2, 2, 3, 1))
sketch2.addConstraint(Sketcher.Constraint("Coincident", 3, 2, 0, 1))
sketch2.addConstraint(Sketcher.Constraint("Coincident", 4, 2, 5, 1))
sketch2.addConstraint(Sketcher.Constraint("Coincident", 5, 2, 6, 1))
sketch2.addConstraint(Sketcher.Constraint("Coincident", 6, 2, 7, 1))
sketch2.addConstraint(Sketcher.Constraint("Coincident", 7, 2, 4, 1))
sketch2.addConstraint(Sketcher.Constraint("Coincident", 8, 2, 9, 1))
sketch2.addConstraint(Sketcher.Constraint("Coincident", 9, 2, 10, 1))
sketch2.addConstraint(Sketcher.Constraint("Coincident", 10, 2, 11, 1))
sketch2.addConstraint(Sketcher.Constraint("Coincident", 11, 2, 8, 1))
sketch2.addConstraint(Sketcher.Constraint("Coincident", 12, 2, 13, 1))
sketch2.addConstraint(Sketcher.Constraint("Coincident", 13, 2, 14, 1))
sketch2.addConstraint(Sketcher.Constraint("Coincident", 14, 2, 15, 1))
sketch2.addConstraint(Sketcher.Constraint("Coincident", 15, 2, 12, 1))
sketch2.addConstraint(Sketcher.Constraint("Coincident", 16, 2, 17, 1))
sketch2.addConstraint(Sketcher.Constraint("Coincident", 17, 2, 18, 1))
sketch2.addConstraint(Sketcher.Constraint("Coincident", 18, 2, 19, 1))
sketch2.addConstraint(Sketcher.Constraint("Coincident", 19, 2, 16, 1))
sketch2.addConstraint(Sketcher.Constraint("Coincident", 20, 2, 21, 1))
sketch2.addConstraint(Sketcher.Constraint("Coincident", 21, 2, 22, 1))
sketch2.addConstraint(Sketcher.Constraint("Coincident", 22, 2, 23, 1))
sketch2.addConstraint(Sketcher.Constraint("Coincident", 23, 2, 20, 1))
sketch2.addConstraint(Sketcher.Constraint("Horizontal", 0))
sketch2.addConstraint(Sketcher.Constraint("Vertical", 1))
sketch2.addConstraint(Sketcher.Constraint("Horizontal", 2))
sketch2.addConstraint(Sketcher.Constraint("Vertical", 3))
sketch2.addConstraint(Sketcher.Constraint("Vertical", 4))
sketch2.addConstraint(Sketcher.Constraint("Horizontal", 5))
sketch2.addConstraint(Sketcher.Constraint("Vertical", 6))
sketch2.addConstraint(Sketcher.Constraint("Horizontal", 7))
sketch2.addConstraint(Sketcher.Constraint("Vertical", 8))
sketch2.addConstraint(Sketcher.Constraint("Horizontal", 9))
sketch2.addConstraint(Sketcher.Constraint("Vertical", 10))
sketch2.addConstraint(Sketcher.Constraint("Horizontal", 11))
sketch2.addConstraint(Sketcher.Constraint("Vertical", 12))
sketch2.addConstraint(Sketcher.Constraint("Horizontal", 13))
sketch2.addConstraint(Sketcher.Constraint("Vertical", 14))
sketch2.addConstraint(Sketcher.Constraint("Horizontal", 15))
sketch2.addConstraint(Sketcher.Constraint("Horizontal", 16))
sketch2.addConstraint(Sketcher.Constraint("Vertical", 17))
sketch2.addConstraint(Sketcher.Constraint("Horizontal", 18))
sketch2.addConstraint(Sketcher.Constraint("Vertical", 19))
sketch2.addConstraint(Sketcher.Constraint("Vertical", 20))
sketch2.addConstraint(Sketcher.Constraint("Horizontal", 21))
sketch2.addConstraint(Sketcher.Constraint("Vertical", 22))
sketch2.addConstraint(Sketcher.Constraint("Horizontal", 23))
sketch2.addConstraint(Sketcher.Constraint("Symmetric", 0, 2, 4, 2, -1))
sketch2.addConstraint(Sketcher.Constraint("Symmetric", 2, 2, 6, 2, -1))
sketch2.addConstraint(Sketcher.Constraint("Symmetric", 12, 2, 16, 2, -1))
sketch2.addConstraint(Sketcher.Constraint("Symmetric", 14, 2, 18, 2, -1))
sketch2.addConstraint(Sketcher.Constraint("Symmetric", 11, 2, 20, 2, -1))
sketch2.addConstraint(Sketcher.Constraint("Symmetric", 9, 2, 22, 2, -1))
sketch2.addConstraint(Sketcher.Constraint("Horizontal", 11, 2, 12, 2))
sketch2.addConstraint(Sketcher.Constraint("Horizontal", 9, 2, 14, 2))
sketch2.addConstraint(Sketcher.Constraint("Equal", 7, 9))
sketch2.addConstraint(Sketcher.Constraint("Equal", 11, 13))
sketch2.addConstraint(Sketcher.Constraint("Equal", 6, 8))
sketch2.addConstraint(Sketcher.Constraint("DistanceX", 0, 2, 0, 1, 2.0))
sketch2.addConstraint(Sketcher.Constraint("DistanceY", 1, 2, 1, 1, 20.5))
sketch2.addConstraint(Sketcher.Constraint("DistanceY", 1, 2, -1, 1, 30.0))
sketch2.addConstraint(Sketcher.Constraint("DistanceY", -1, 1, 8, 2, 60.0))
sketch2.addConstraint(Sketcher.Constraint("DistanceX", 12, 2, -1, 1, 32.0))
sketch2.addConstraint(Sketcher.Constraint("DistanceX", 0, 2, -1, 1, 141.6))
sketch2.addConstraint(Sketcher.Constraint("DistanceX", 8, 2, -1, 1, 68.4))
pocket1 = body.newObject("PartDesign::Pocket", "Pocket")
pocket1.Profile = sketch2
pocket1.Length = 2

sketch3 = body.newObject("Sketcher::SketchObject", "Sketch002")
sketch3.AttachmentSupport = (doc.getObject("XZ_Plane"), [""])
sketch3.MapMode = "FlatFace"
sketch3.addGeometry(Part.Circle(App.Vector(-27, 65, 0), App.Vector(0, 0, 1), 1.5), False)
sketch3.addGeometry(Part.Circle(App.Vector(-73.4, 65, 0), App.Vector(0, 0, 1), 1.5), False)
sketch3.addGeometry(Part.Circle(App.Vector(-73.4, 87, 0), App.Vector(0, 0, 1), 1.5), False)
sketch3.addGeometry(Part.Circle(App.Vector(-139.6, 87, 0), App.Vector(0, 0, 1), 1.5), False)
sketch3.addGeometry(Part.Circle(App.Vector(-136.6, 60, 0), App.Vector(0, 0, 1), 1.5), False)
sketch3.addGeometry(Part.Circle(App.Vector(-177, 63, 0), App.Vector(0, 0, 1), 1.5), False)
sketch3.addGeometry(Part.Circle(App.Vector(-136.6, 32, 0), App.Vector(0, 0, 1), 1.5), False)
sketch3.addGeometry(Part.Circle(App.Vector(-136.6, -32, 0), App.Vector(0, 0, 1), 1.5), False)
sketch3.addGeometry(Part.Circle(App.Vector(-177, -63, 0), App.Vector(0, 0, 1), 1.5), False)
sketch3.addGeometry(Part.Circle(App.Vector(-136.6, -60, 0), App.Vector(0, 0, 1), 1.5), False)
sketch3.addGeometry(Part.Circle(App.Vector(-139.6, -87, 0), App.Vector(0, 0, 1), 1.5), False)
sketch3.addGeometry(Part.Circle(App.Vector(-73.4, -87, 0), App.Vector(0, 0, 1), 1.5), False)
sketch3.addGeometry(Part.Circle(App.Vector(-27, -65, 0), App.Vector(0, 0, 1), 1.5), False)
sketch3.addConstraint(Sketcher.Constraint("Equal", 0, 1))
sketch3.addConstraint(Sketcher.Constraint("Equal", 1, 2))
sketch3.addConstraint(Sketcher.Constraint("Equal", 2, 3))
sketch3.addConstraint(Sketcher.Constraint("Equal", 3, 4))
sketch3.addConstraint(Sketcher.Constraint("Equal", 4, 5))
sketch3.addConstraint(Sketcher.Constraint("Equal", 5, 6))
sketch3.addConstraint(Sketcher.Constraint("Equal", 6, 7))
sketch3.addConstraint(Sketcher.Constraint("Equal", 7, 8))
sketch3.addConstraint(Sketcher.Constraint("Equal", 8, 9))
sketch3.addConstraint(Sketcher.Constraint("Equal", 9, 10))
sketch3.addConstraint(Sketcher.Constraint("Equal", 10, 11))
sketch3.addConstraint(Sketcher.Constraint("Equal", 11, 12))
sketch3.addConstraint(Sketcher.Constraint("Symmetric", 6, 3, 7, 3, -1))
sketch3.addConstraint(Sketcher.Constraint("Symmetric", 5, 3, 8, 3, -1))
sketch3.addConstraint(Sketcher.Constraint("Symmetric", 4, 3, 9, 3, -1))
sketch3.addConstraint(Sketcher.Constraint("Symmetric", 3, 3, 10, 3, -1))
sketch3.addConstraint(Sketcher.Constraint("Symmetric", 2, 3, 11, 3, -1))
sketch3.addConstraint(Sketcher.Constraint("Symmetric", 0, 3, 12, 3, -1))
sketch3.addConstraint(Sketcher.Constraint("Horizontal", 0, 3, 1, 3))
sketch3.addConstraint(Sketcher.Constraint("Horizontal", 2, 3, 3, 3))
sketch3.addConstraint(Sketcher.Constraint("Vertical", 1, 3, 2, 3))
sketch3.addConstraint(Sketcher.Constraint("Vertical", 4, 3, 6, 3))
sketch3.addConstraint(Sketcher.Constraint("Diameter", 0, 3.0))
sketch3.addConstraint(Sketcher.Constraint("DistanceX", 0, 3, -1, 1, 27.0))
sketch3.addConstraint(Sketcher.Constraint("DistanceY", -1, 1, 0, 3, 65.0))
sketch3.addConstraint(Sketcher.Constraint("DistanceY", -1, 1, 2, 3, 87.0))
sketch3.addConstraint(Sketcher.Constraint("DistanceY", -1, 1, 4, 3, 60.0))
sketch3.addConstraint(Sketcher.Constraint("DistanceX", 5, 3, -1, 1, 177.0))
sketch3.addConstraint(Sketcher.Constraint("DistanceY", -1, 1, 5, 3, 63.0))
sketch3.addConstraint(Sketcher.Constraint("DistanceY", -1, 1, 6, 3, 32.0))
sketch3.addConstraint(Sketcher.Constraint("DistanceX", 3, 3, 4, 3, 3.0))
sketch3.addConstraint(Sketcher.Constraint("DistanceX", 1, 3, -1, 1, 73.4))
sketch3.addConstraint(Sketcher.Constraint("DistanceX", 3, 3, -1, 1, 139.6))
doc.recompute()
hole = body.newObject("PartDesign::Hole", "Hole")
hole.Profile = sketch3
hole.ThreadType = "None"
hole.Diameter = 3
hole.DepthType = "Dimension"
hole.Depth = 2
hole.DrillPoint = "Flat"
hole.HoleCutType = "Countersink"
hole.HoleCutDiameter = 6
hole.HoleCutCountersinkAngle = 90

sketch4 = body.newObject("Sketcher::SketchObject", "Sketch003")
sketch4.AttachmentSupport = (doc.getObject("XZ_Plane"), [""])
sketch4.MapMode = "FlatFace"
sketch4.AttachmentOffset = App.Placement(App.Vector(0, 0, -2), App.Rotation())
sketch4.addGeometry(Part.LineSegment(App.Vector(-14, 20.75, 0), App.Vector(-14, 39.25, 0)), False)
sketch4.addGeometry(Part.LineSegment(App.Vector(-14, 39.25, 0), App.Vector(-8, 39.25, 0)), False)
sketch4.addGeometry(Part.LineSegment(App.Vector(-8, 39.25, 0), App.Vector(-8, 20.75, 0)), False)
sketch4.addGeometry(Part.LineSegment(App.Vector(-8, 20.75, 0), App.Vector(-14, 20.75, 0)), False)
sketch4.addGeometry(Part.LineSegment(App.Vector(-14, -39.25, 0), App.Vector(-14, -20.75, 0)), False)
sketch4.addGeometry(Part.LineSegment(App.Vector(-14, -20.75, 0), App.Vector(-8, -20.75, 0)), False)
sketch4.addGeometry(Part.LineSegment(App.Vector(-8, -20.75, 0), App.Vector(-8, -39.25, 0)), False)
sketch4.addGeometry(Part.LineSegment(App.Vector(-8, -39.25, 0), App.Vector(-14, -39.25, 0)), False)
sketch4.addConstraint(Sketcher.Constraint("Coincident", 0, 2, 1, 1))
sketch4.addConstraint(Sketcher.Constraint("Coincident", 1, 2, 2, 1))
sketch4.addConstraint(Sketcher.Constraint("Coincident", 2, 2, 3, 1))
sketch4.addConstraint(Sketcher.Constraint("Coincident", 3, 2, 0, 1))
sketch4.addConstraint(Sketcher.Constraint("Coincident", 4, 2, 5, 1))
sketch4.addConstraint(Sketcher.Constraint("Coincident", 5, 2, 6, 1))
sketch4.addConstraint(Sketcher.Constraint("Coincident", 6, 2, 7, 1))
sketch4.addConstraint(Sketcher.Constraint("Coincident", 7, 2, 4, 1))
sketch4.addConstraint(Sketcher.Constraint("Vertical", 0))
sketch4.addConstraint(Sketcher.Constraint("Horizontal", 1))
sketch4.addConstraint(Sketcher.Constraint("Vertical", 2))
sketch4.addConstraint(Sketcher.Constraint("Horizontal", 3))
sketch4.addConstraint(Sketcher.Constraint("Vertical", 4))
sketch4.addConstraint(Sketcher.Constraint("Horizontal", 5))
sketch4.addConstraint(Sketcher.Constraint("Vertical", 6))
sketch4.addConstraint(Sketcher.Constraint("Horizontal", 7))
sketch4.addConstraint(Sketcher.Constraint("Symmetric", 3, 2, 4, 2, -1))
sketch4.addConstraint(Sketcher.Constraint("Symmetric", 1, 2, 6, 2, -1))
sketch4.addConstraint(Sketcher.Constraint("DistanceX", 1, 1, 1, 2, 6.0))
sketch4.addConstraint(Sketcher.Constraint("DistanceY", 0, 1, 0, 2, 18.5))
sketch4.addConstraint(Sketcher.Constraint("DistanceX", 1, 2, -1, 1, 8.0))
sketch4.addConstraint(Sketcher.Constraint("DistanceY", 4, 2, 0, 2, 60.0))
pocket2 = body.newObject("PartDesign::Pocket", "Pocket001")
pocket2.Profile = sketch4
pocket2.Length = 10
pocket2.Reversed = True

sketch5 = body.newObject("Sketcher::SketchObject", "Sketch004")
sketch5.AttachmentSupport = (doc.getObject("XZ_Plane"), [""])
sketch5.MapMode = "FlatFace"
sketch5.AttachmentOffset = App.Placement(App.Vector(0, 0, -2), App.Rotation())
sketch5.addGeometry(Part.Circle(App.Vector(-3, -55.8, 0), App.Vector(0, 0, 1), 1.25), False)
sketch5.addGeometry(Part.Circle(App.Vector(-3, 55.8, 0), App.Vector(0, 0, 1), 1.25), False)
sketch5.addConstraint(Sketcher.Constraint("Equal", 0, 1))
sketch5.addConstraint(Sketcher.Constraint("Symmetric", 0, 3, 1, 3, -1))
sketch5.addConstraint(Sketcher.Constraint("Diameter", 0, 2.5))
sketch5.addConstraint(Sketcher.Constraint("DistanceX", 0, 3, -1, 1, 3.0))
sketch5.addConstraint(Sketcher.Constraint("DistanceY", 0, 3, -1, 1, 55.8))
pocket3 = body.newObject("PartDesign::Pocket", "Pocket002")
pocket3.Profile = sketch5
pocket3.Length = 2
pocket3.Reversed = True

doc.recompute()
